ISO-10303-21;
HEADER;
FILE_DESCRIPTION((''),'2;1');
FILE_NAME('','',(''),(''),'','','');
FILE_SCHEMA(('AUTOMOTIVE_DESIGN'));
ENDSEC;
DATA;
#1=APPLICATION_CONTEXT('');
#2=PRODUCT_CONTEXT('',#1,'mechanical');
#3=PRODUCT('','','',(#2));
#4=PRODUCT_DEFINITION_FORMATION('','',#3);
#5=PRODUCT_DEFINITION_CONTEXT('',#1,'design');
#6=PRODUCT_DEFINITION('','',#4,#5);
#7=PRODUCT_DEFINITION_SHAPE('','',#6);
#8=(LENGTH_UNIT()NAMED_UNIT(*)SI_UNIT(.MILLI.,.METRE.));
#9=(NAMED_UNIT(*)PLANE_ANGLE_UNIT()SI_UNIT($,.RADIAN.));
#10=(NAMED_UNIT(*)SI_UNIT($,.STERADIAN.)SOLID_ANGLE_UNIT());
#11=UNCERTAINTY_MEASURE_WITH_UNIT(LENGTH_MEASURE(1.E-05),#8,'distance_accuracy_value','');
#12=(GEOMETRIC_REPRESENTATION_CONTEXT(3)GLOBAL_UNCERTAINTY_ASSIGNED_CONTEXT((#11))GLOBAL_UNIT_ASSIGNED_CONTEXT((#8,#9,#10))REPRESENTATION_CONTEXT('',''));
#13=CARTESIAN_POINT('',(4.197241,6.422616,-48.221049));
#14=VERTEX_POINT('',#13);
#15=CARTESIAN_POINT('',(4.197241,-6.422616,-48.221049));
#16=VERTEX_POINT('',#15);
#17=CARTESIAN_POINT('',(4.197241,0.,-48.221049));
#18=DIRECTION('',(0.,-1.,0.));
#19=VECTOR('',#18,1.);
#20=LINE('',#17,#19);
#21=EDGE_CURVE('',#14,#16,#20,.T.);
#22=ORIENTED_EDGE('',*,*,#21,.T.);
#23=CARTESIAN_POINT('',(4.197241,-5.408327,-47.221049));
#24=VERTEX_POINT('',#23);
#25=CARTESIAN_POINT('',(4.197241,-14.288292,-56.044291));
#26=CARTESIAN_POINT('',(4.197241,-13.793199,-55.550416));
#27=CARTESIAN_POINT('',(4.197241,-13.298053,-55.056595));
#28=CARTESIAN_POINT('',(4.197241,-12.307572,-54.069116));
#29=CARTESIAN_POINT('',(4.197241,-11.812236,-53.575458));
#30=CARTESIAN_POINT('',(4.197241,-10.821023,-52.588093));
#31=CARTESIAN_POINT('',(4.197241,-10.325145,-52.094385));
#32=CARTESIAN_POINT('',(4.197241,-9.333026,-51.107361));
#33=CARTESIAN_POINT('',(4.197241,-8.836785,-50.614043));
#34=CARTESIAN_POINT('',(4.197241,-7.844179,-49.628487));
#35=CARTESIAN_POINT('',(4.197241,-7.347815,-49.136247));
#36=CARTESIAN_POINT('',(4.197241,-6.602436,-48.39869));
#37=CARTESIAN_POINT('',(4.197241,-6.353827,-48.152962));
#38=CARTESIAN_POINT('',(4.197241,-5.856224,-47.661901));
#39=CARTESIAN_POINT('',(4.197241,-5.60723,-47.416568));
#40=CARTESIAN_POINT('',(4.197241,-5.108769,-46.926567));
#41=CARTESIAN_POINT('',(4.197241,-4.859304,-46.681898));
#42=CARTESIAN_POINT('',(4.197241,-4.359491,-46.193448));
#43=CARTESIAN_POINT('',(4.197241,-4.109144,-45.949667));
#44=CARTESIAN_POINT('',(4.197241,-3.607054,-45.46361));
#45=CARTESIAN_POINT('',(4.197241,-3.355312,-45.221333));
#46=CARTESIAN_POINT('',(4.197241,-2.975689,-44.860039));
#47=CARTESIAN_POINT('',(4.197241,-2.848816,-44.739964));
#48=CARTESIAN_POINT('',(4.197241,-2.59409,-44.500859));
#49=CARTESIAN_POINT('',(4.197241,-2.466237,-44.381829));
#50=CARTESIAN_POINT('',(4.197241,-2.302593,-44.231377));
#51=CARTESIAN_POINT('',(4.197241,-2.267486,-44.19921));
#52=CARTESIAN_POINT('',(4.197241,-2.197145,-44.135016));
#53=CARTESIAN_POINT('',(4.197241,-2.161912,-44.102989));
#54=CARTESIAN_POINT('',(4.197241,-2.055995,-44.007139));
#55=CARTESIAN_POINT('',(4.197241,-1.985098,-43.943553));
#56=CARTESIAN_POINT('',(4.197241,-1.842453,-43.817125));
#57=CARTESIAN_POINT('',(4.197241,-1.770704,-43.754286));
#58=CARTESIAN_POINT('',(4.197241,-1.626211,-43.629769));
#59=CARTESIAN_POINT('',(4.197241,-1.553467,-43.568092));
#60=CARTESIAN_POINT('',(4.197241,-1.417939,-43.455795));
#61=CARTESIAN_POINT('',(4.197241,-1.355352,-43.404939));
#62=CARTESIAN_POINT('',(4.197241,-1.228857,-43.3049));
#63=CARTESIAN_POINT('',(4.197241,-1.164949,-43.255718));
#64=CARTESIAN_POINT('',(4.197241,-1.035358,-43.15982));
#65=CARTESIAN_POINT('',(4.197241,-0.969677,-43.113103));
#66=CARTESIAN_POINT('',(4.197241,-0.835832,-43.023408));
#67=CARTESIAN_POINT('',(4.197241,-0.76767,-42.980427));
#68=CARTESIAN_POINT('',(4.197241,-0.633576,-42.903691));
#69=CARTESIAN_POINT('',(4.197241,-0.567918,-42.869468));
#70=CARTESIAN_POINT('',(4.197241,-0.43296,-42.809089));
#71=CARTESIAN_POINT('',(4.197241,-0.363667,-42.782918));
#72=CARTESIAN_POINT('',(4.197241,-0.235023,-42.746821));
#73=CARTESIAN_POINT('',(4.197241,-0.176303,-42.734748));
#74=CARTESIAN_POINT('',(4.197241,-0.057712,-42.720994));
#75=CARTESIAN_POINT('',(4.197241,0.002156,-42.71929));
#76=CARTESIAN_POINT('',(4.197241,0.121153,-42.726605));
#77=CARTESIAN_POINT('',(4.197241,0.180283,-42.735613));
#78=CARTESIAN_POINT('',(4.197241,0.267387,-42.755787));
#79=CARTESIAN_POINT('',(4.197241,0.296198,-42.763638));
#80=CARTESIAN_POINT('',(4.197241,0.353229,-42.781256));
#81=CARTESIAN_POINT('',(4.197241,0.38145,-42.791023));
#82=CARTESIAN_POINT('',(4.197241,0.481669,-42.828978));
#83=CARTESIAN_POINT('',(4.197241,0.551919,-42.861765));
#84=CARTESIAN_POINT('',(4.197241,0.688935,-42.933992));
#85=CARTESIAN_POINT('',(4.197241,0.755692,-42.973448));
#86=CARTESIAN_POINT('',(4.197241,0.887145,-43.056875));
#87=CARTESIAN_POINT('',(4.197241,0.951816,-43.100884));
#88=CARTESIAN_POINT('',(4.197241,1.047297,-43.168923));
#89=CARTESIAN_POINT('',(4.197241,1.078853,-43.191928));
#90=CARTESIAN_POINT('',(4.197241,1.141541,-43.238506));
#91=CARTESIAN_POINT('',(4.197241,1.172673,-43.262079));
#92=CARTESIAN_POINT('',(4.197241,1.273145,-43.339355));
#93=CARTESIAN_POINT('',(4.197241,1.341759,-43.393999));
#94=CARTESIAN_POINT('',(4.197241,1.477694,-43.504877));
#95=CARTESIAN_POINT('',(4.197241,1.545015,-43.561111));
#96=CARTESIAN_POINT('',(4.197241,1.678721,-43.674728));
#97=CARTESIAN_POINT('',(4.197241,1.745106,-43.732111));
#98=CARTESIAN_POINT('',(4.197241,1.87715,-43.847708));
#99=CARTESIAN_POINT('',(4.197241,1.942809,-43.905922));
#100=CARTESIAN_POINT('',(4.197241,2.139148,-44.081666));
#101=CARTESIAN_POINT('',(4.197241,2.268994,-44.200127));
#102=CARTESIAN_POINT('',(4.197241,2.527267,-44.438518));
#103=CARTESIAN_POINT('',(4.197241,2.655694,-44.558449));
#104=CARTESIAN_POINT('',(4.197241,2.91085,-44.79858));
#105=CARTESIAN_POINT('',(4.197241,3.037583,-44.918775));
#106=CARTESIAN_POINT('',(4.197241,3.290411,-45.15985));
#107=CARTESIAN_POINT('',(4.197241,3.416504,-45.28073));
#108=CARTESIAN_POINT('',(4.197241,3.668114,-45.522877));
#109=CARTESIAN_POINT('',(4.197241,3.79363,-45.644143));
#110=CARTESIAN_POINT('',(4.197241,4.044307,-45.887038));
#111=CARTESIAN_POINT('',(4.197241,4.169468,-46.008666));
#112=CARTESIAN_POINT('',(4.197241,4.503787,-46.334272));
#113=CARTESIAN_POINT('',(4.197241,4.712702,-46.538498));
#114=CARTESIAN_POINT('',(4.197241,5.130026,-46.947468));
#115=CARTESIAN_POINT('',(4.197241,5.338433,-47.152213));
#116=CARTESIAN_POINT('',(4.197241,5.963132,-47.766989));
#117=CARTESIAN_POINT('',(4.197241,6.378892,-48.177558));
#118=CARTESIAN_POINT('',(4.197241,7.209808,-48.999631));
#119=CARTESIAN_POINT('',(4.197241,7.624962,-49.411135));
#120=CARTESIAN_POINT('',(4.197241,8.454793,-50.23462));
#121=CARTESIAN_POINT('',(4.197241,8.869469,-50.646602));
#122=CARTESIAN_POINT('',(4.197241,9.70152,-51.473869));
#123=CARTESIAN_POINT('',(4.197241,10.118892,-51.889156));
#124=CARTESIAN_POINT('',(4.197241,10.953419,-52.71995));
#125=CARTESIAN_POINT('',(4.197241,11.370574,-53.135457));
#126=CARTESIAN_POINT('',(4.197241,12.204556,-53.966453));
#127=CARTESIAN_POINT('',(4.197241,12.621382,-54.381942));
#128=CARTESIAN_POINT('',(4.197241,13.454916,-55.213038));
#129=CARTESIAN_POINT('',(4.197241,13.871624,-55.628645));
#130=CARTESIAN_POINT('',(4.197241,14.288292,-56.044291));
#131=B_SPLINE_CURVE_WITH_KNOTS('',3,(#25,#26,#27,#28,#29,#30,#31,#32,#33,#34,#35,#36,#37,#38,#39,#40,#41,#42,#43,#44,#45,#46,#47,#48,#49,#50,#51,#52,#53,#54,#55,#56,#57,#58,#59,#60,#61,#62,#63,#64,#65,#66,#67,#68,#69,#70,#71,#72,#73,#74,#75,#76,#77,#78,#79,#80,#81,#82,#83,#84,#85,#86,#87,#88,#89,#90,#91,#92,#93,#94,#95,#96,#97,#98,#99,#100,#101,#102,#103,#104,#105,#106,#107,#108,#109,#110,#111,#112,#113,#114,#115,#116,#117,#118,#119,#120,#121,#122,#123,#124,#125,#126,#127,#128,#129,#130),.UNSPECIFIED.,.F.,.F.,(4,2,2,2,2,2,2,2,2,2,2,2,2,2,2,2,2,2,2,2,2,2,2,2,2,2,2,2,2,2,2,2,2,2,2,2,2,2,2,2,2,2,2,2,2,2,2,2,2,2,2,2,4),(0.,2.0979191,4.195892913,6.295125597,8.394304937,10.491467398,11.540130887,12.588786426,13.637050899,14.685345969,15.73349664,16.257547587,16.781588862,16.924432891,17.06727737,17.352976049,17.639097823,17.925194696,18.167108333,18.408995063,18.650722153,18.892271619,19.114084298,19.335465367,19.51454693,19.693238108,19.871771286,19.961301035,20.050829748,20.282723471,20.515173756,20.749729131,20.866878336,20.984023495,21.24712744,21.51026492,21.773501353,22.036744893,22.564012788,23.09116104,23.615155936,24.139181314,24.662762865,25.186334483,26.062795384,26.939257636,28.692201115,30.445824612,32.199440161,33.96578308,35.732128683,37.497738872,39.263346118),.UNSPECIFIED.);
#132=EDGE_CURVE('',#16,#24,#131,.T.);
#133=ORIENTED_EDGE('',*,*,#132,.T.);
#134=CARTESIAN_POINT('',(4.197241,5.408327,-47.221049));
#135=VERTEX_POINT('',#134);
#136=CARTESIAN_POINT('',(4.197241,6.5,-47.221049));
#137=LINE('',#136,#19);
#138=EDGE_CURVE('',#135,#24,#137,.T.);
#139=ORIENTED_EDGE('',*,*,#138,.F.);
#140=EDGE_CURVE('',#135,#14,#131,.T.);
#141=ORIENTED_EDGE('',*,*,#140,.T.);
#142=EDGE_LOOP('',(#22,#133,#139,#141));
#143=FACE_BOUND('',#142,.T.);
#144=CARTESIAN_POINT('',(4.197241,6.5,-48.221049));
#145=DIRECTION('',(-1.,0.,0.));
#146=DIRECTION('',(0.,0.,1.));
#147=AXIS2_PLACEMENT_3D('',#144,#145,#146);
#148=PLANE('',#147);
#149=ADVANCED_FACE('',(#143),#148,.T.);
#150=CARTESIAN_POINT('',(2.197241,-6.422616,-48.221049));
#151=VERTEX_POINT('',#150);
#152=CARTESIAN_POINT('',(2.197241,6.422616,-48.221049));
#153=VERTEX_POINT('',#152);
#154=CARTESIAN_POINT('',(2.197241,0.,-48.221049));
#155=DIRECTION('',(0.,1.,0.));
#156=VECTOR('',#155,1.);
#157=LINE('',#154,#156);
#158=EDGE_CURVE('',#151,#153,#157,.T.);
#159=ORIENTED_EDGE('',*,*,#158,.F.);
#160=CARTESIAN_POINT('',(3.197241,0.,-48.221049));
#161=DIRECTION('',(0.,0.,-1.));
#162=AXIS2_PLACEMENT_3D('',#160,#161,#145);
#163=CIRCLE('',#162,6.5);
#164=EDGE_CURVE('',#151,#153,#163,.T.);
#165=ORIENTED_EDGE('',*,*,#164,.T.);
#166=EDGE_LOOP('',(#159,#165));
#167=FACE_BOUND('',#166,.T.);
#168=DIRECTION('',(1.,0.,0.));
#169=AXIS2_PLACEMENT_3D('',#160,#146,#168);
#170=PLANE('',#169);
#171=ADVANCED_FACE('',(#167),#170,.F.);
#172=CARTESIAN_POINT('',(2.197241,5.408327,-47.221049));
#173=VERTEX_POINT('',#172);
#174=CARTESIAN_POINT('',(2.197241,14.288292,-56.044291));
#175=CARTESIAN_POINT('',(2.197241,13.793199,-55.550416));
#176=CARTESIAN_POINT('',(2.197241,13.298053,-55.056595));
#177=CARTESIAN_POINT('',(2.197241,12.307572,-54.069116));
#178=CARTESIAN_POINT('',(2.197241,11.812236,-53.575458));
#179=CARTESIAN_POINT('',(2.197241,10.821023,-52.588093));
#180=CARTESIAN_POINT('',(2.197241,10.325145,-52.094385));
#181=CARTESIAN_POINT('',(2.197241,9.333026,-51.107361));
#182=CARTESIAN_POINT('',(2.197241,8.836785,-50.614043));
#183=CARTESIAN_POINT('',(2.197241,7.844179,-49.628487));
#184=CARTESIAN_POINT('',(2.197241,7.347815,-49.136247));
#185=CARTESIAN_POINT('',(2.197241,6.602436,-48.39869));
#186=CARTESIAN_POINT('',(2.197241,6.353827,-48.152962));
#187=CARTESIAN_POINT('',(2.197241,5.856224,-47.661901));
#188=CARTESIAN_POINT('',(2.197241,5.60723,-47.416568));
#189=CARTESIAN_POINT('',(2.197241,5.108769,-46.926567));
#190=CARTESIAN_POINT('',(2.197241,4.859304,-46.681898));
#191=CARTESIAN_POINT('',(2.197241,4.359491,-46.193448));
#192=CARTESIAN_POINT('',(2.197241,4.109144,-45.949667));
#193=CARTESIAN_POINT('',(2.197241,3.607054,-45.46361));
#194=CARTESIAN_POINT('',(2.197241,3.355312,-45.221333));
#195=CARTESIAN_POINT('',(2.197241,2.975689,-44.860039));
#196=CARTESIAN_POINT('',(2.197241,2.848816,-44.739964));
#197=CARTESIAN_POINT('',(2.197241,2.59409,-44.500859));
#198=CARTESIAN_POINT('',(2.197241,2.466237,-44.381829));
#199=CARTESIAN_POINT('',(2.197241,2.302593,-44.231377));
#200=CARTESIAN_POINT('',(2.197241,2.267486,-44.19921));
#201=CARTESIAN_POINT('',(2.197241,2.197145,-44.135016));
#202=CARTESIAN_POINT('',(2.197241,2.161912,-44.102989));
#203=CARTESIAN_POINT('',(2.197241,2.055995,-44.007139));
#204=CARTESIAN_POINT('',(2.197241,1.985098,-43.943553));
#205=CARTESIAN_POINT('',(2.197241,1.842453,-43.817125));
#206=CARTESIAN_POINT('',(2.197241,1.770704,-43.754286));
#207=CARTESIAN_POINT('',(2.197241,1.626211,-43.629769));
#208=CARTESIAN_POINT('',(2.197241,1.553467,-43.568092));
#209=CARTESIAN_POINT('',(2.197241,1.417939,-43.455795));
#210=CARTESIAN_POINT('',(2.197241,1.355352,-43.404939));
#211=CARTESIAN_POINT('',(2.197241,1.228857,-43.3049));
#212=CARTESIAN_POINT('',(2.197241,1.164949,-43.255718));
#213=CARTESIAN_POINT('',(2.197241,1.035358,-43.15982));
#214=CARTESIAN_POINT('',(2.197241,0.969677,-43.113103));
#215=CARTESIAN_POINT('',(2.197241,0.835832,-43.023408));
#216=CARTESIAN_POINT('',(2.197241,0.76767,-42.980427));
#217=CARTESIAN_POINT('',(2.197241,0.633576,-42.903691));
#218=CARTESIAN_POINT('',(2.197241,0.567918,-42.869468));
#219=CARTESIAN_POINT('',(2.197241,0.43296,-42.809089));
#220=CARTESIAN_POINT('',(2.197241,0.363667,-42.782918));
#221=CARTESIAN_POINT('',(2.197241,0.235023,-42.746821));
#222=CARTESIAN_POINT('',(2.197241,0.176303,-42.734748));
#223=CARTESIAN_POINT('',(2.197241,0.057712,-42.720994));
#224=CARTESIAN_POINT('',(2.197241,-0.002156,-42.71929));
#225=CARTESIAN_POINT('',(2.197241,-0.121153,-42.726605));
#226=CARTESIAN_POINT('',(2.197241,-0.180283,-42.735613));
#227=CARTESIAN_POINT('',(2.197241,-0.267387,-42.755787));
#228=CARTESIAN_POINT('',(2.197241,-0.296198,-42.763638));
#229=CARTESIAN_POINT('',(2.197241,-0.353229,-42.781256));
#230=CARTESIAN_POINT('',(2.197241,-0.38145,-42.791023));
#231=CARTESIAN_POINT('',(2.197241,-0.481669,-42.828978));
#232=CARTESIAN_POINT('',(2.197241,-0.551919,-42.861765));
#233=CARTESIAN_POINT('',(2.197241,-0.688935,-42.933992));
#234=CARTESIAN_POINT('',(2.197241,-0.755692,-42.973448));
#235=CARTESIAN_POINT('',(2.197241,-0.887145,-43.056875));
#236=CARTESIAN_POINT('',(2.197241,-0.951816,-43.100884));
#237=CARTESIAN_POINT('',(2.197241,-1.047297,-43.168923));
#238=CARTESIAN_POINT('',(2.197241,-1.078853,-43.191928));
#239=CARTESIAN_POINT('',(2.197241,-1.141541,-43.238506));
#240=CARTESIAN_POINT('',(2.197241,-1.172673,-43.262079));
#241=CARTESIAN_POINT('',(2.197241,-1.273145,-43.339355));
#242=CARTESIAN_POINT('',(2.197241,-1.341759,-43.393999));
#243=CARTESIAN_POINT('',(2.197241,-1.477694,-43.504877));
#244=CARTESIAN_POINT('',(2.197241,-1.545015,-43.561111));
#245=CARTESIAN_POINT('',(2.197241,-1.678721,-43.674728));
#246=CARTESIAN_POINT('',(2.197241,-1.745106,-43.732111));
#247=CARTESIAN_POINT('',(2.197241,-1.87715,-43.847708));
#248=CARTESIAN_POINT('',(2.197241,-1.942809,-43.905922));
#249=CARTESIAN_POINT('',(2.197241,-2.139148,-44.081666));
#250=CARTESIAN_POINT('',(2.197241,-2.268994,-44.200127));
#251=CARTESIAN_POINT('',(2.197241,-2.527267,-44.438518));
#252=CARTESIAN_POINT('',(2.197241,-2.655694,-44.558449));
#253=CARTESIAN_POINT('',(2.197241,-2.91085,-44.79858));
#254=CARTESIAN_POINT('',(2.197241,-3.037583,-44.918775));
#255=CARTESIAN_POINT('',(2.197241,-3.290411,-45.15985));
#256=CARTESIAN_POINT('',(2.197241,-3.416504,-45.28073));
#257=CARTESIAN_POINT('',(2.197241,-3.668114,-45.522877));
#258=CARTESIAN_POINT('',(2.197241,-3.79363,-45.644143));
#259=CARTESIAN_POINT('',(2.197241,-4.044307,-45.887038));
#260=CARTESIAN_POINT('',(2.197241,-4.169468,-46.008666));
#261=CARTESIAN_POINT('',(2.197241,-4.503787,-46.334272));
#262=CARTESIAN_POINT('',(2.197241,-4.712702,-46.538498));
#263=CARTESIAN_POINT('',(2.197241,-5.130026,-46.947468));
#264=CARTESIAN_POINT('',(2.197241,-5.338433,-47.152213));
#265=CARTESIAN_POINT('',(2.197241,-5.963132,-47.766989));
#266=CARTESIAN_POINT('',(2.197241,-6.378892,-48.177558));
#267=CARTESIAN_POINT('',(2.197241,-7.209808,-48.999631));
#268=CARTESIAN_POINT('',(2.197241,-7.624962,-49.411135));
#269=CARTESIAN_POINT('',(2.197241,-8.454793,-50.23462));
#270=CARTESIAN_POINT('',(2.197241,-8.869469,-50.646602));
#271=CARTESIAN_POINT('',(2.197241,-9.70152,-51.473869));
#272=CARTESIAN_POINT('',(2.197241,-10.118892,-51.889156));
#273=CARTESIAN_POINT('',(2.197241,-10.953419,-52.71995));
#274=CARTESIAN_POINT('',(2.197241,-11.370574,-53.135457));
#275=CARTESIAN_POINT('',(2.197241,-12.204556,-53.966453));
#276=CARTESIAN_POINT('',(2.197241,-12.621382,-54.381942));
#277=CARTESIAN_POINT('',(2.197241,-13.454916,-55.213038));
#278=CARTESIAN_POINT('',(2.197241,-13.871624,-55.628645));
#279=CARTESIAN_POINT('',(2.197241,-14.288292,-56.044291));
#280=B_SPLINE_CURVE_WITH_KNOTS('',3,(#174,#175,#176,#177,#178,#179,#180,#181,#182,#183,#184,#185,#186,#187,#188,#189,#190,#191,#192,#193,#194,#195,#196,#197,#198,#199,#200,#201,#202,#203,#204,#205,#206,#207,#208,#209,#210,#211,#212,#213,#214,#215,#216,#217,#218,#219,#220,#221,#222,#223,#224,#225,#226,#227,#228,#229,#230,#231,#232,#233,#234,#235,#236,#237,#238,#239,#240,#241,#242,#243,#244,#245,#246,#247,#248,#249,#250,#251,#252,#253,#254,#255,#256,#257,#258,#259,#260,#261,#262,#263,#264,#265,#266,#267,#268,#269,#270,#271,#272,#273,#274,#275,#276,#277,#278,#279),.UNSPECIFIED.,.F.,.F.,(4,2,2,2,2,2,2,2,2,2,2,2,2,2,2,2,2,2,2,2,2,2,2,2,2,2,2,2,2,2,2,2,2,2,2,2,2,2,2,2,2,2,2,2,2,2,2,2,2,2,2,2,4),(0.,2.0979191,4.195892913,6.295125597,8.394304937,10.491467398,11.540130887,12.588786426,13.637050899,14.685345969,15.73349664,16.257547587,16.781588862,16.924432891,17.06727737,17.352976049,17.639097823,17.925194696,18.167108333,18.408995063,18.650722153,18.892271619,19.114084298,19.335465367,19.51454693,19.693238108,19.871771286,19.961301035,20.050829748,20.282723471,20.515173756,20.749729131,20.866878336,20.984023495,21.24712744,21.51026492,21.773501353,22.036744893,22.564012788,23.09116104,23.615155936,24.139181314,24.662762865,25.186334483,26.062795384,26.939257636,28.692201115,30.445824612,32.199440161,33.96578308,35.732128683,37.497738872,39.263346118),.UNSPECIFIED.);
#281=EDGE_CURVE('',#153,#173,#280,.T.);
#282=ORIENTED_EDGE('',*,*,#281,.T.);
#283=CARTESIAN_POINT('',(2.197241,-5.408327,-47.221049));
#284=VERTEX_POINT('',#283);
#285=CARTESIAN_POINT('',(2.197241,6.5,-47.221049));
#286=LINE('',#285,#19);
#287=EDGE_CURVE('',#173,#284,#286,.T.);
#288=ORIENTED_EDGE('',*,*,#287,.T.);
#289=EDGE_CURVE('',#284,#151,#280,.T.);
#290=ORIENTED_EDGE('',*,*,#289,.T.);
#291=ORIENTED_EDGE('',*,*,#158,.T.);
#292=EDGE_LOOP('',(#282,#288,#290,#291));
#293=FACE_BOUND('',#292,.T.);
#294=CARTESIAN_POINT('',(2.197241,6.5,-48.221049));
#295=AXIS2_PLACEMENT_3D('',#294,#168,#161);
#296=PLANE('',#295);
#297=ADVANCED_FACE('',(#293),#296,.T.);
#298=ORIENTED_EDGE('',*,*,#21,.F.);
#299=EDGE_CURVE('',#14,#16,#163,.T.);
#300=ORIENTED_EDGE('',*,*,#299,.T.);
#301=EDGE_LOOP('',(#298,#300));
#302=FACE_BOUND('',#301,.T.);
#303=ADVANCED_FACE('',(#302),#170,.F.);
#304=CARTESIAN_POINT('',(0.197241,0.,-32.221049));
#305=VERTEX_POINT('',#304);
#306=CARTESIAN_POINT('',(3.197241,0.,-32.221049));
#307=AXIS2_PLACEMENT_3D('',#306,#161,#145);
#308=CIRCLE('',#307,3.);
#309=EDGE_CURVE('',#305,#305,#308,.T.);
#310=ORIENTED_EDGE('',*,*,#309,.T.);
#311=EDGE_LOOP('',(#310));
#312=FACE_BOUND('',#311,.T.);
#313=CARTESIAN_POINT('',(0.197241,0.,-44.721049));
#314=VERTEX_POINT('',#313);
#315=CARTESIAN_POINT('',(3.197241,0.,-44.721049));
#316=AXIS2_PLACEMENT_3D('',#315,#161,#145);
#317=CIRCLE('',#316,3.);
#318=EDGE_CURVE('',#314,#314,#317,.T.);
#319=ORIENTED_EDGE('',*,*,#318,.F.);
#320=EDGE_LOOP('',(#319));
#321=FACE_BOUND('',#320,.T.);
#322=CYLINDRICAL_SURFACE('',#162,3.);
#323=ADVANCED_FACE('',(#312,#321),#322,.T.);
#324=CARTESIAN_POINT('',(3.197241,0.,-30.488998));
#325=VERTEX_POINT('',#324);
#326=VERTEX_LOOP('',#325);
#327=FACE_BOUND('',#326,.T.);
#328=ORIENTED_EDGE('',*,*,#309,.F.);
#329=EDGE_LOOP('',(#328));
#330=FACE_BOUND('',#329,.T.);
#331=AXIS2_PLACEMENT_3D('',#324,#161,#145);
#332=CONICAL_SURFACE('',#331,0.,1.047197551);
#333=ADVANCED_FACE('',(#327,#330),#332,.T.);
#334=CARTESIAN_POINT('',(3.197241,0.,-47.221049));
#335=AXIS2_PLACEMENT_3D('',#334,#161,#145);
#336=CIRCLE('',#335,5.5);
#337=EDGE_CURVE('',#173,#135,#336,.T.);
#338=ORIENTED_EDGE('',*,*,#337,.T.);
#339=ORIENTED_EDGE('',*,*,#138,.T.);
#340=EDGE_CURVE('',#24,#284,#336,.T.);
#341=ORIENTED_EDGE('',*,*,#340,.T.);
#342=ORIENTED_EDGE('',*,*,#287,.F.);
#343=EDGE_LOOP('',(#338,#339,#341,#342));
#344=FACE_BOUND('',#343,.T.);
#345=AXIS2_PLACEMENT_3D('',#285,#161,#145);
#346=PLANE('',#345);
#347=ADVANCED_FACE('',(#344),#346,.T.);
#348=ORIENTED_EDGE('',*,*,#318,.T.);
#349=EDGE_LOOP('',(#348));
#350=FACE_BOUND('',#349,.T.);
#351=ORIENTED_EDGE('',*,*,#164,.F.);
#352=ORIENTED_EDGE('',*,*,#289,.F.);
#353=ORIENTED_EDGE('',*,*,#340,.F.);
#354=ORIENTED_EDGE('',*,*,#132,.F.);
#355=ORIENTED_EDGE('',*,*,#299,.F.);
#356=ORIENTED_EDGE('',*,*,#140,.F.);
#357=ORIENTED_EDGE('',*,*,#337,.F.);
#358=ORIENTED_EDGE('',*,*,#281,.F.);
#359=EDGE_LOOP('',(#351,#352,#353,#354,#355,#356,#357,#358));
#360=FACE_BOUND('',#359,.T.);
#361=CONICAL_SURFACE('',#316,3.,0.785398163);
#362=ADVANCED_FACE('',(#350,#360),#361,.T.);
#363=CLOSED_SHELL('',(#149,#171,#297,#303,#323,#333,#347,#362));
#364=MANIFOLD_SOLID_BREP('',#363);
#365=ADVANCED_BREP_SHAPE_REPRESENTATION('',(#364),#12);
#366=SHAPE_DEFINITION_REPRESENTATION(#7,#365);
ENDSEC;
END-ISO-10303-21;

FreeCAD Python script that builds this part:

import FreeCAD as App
import Part
import Sketcher
from FreeCAD import Vector
Q = App.Units.Quantity


def add_polygon(sketch, points):
    """Adds a closed chain of lines whose ends are joined by coincident constraints."""
    first, n = sketch.GeometryCount, len(points)
    for a, b in zip(points, points[1:] + points[:1]):
        sketch.addGeometry(Part.LineSegment(App.Vector(*a, 0), App.Vector(*b, 0)), False)
    for i in range(n):
        sketch.addConstraint(Sketcher.Constraint("Coincident", first + i, 2, first + (i + 1) % n, 1))

doc = App.newDocument("Part")
params = doc.addObject("Spreadsheet::Sheet", "Params")
for row, (alias, value) in enumerate([
    ("sketch1_width", "6.5 mm"),
    ("sketch1_height", "12.5 mm"),
    ("revolution_angle", "360 deg"),
    ("sketch2_width", "2 mm"),
    ("sketch2_height", "1 mm"),
], start=1):
    params.set(f"A{row}", alias)
    params.set(f"B{row}", "=" + value)
    params.setAlias(f"B{row}", alias)

body = doc.addObject("PartDesign::Body", "Body")

sketch1 = body.newObject("Sketcher::SketchObject", "Sketch")
sketch1.AttachmentSupport = (doc.getObject("XZ_Plane"), [""])
sketch1.MapMode = "FlatFace"
add_polygon(sketch1, [(6.197241, -44.721049), (9.697241, -48.221049), (3.197241, -48.221049), (3.197241, -30.488998), (6.197241, -32.221049)])
sketch1.addGeometry(Part.LineSegment(Vector(3.197241, -48.221049, 0), Vector(3.197241, -30.488998, 0)), True)
sketch1.addConstraint([
    Sketcher.Constraint("Horizontal", 1),
    Sketcher.Constraint("Vertical", 2),
    Sketcher.Constraint("Vertical", 4),
    Sketcher.Constraint("Vertical", 5),
    Sketcher.Constraint("Coincident", 5, 1, 1, 2),
    Sketcher.Constraint("Equal", 2, 5),
    Sketcher.Constraint("Angle", 0, Q("-45 deg")),
    Sketcher.Constraint("Angle", 3, Q("-30 deg")),
    Sketcher.Constraint("DistanceX", 1, 2, 1, 1, Q("6.5 mm")),
    Sketcher.Constraint("DistanceY", 4, 2, 4, 1, Q("12.5 mm")),
    Sketcher.Constraint("DistanceX", 2, 2, 3, 2, Q("3 mm")),
    Sketcher.Constraint("DistanceX", -1, 1, 0, 2, Q("9.697241 mm")),
    Sketcher.Constraint("DistanceY", 0, 2, -1, 1, Q("48.221049 mm")),
])
sketch1.setExpression("Constraints[13]", "Params.sketch1_width")
sketch1.setExpression("Constraints[14]", "Params.sketch1_height")
revolution = body.newObject("PartDesign::Revolution", "Revolution")
revolution.Profile = sketch1
revolution.ReferenceAxis = (sketch1, ["Axis0"])
revolution.setExpression("Angle", "Params.revolution_angle")

sketch2 = body.newObject("Sketcher::SketchObject", "Sketch001")
sketch2.AttachmentSupport = (doc.getObject("XZ_Plane"), [""])
sketch2.MapMode = "FlatFace"
add_polygon(sketch2, [(2.197241, -48.221049), (2.197241, -47.221049), (4.197241, -47.221049), (4.197241, -48.221049)])
sketch2.addConstraint([
    Sketcher.Constraint("Vertical", 0),
    Sketcher.Constraint("Horizontal", 1),
    Sketcher.Constraint("Vertical", 2),
    Sketcher.Constraint("Horizontal", 3),
    Sketcher.Constraint("DistanceX", 1, 1, 1, 2, Q("2 mm")),
    Sketcher.Constraint("DistanceY", 0, 1, 0, 2, Q("1 mm")),
    Sketcher.Constraint("DistanceX", -1, 1, 0, 2, Q("2.197241 mm")),
    Sketcher.Constraint("DistanceY", 0, 2, -1, 1, Q("47.221049 mm")),
])
sketch2.setExpression("Constraints[8]", "Params.sketch2_width")
sketch2.setExpression("Constraints[9]", "Params.sketch2_height")
pocket1 = body.newObject("PartDesign::Pocket", "Pocket")
pocket1.Profile = sketch2
pocket1.Type = "ThroughAll"
pocket1.Midplane = True

doc.recompute()
